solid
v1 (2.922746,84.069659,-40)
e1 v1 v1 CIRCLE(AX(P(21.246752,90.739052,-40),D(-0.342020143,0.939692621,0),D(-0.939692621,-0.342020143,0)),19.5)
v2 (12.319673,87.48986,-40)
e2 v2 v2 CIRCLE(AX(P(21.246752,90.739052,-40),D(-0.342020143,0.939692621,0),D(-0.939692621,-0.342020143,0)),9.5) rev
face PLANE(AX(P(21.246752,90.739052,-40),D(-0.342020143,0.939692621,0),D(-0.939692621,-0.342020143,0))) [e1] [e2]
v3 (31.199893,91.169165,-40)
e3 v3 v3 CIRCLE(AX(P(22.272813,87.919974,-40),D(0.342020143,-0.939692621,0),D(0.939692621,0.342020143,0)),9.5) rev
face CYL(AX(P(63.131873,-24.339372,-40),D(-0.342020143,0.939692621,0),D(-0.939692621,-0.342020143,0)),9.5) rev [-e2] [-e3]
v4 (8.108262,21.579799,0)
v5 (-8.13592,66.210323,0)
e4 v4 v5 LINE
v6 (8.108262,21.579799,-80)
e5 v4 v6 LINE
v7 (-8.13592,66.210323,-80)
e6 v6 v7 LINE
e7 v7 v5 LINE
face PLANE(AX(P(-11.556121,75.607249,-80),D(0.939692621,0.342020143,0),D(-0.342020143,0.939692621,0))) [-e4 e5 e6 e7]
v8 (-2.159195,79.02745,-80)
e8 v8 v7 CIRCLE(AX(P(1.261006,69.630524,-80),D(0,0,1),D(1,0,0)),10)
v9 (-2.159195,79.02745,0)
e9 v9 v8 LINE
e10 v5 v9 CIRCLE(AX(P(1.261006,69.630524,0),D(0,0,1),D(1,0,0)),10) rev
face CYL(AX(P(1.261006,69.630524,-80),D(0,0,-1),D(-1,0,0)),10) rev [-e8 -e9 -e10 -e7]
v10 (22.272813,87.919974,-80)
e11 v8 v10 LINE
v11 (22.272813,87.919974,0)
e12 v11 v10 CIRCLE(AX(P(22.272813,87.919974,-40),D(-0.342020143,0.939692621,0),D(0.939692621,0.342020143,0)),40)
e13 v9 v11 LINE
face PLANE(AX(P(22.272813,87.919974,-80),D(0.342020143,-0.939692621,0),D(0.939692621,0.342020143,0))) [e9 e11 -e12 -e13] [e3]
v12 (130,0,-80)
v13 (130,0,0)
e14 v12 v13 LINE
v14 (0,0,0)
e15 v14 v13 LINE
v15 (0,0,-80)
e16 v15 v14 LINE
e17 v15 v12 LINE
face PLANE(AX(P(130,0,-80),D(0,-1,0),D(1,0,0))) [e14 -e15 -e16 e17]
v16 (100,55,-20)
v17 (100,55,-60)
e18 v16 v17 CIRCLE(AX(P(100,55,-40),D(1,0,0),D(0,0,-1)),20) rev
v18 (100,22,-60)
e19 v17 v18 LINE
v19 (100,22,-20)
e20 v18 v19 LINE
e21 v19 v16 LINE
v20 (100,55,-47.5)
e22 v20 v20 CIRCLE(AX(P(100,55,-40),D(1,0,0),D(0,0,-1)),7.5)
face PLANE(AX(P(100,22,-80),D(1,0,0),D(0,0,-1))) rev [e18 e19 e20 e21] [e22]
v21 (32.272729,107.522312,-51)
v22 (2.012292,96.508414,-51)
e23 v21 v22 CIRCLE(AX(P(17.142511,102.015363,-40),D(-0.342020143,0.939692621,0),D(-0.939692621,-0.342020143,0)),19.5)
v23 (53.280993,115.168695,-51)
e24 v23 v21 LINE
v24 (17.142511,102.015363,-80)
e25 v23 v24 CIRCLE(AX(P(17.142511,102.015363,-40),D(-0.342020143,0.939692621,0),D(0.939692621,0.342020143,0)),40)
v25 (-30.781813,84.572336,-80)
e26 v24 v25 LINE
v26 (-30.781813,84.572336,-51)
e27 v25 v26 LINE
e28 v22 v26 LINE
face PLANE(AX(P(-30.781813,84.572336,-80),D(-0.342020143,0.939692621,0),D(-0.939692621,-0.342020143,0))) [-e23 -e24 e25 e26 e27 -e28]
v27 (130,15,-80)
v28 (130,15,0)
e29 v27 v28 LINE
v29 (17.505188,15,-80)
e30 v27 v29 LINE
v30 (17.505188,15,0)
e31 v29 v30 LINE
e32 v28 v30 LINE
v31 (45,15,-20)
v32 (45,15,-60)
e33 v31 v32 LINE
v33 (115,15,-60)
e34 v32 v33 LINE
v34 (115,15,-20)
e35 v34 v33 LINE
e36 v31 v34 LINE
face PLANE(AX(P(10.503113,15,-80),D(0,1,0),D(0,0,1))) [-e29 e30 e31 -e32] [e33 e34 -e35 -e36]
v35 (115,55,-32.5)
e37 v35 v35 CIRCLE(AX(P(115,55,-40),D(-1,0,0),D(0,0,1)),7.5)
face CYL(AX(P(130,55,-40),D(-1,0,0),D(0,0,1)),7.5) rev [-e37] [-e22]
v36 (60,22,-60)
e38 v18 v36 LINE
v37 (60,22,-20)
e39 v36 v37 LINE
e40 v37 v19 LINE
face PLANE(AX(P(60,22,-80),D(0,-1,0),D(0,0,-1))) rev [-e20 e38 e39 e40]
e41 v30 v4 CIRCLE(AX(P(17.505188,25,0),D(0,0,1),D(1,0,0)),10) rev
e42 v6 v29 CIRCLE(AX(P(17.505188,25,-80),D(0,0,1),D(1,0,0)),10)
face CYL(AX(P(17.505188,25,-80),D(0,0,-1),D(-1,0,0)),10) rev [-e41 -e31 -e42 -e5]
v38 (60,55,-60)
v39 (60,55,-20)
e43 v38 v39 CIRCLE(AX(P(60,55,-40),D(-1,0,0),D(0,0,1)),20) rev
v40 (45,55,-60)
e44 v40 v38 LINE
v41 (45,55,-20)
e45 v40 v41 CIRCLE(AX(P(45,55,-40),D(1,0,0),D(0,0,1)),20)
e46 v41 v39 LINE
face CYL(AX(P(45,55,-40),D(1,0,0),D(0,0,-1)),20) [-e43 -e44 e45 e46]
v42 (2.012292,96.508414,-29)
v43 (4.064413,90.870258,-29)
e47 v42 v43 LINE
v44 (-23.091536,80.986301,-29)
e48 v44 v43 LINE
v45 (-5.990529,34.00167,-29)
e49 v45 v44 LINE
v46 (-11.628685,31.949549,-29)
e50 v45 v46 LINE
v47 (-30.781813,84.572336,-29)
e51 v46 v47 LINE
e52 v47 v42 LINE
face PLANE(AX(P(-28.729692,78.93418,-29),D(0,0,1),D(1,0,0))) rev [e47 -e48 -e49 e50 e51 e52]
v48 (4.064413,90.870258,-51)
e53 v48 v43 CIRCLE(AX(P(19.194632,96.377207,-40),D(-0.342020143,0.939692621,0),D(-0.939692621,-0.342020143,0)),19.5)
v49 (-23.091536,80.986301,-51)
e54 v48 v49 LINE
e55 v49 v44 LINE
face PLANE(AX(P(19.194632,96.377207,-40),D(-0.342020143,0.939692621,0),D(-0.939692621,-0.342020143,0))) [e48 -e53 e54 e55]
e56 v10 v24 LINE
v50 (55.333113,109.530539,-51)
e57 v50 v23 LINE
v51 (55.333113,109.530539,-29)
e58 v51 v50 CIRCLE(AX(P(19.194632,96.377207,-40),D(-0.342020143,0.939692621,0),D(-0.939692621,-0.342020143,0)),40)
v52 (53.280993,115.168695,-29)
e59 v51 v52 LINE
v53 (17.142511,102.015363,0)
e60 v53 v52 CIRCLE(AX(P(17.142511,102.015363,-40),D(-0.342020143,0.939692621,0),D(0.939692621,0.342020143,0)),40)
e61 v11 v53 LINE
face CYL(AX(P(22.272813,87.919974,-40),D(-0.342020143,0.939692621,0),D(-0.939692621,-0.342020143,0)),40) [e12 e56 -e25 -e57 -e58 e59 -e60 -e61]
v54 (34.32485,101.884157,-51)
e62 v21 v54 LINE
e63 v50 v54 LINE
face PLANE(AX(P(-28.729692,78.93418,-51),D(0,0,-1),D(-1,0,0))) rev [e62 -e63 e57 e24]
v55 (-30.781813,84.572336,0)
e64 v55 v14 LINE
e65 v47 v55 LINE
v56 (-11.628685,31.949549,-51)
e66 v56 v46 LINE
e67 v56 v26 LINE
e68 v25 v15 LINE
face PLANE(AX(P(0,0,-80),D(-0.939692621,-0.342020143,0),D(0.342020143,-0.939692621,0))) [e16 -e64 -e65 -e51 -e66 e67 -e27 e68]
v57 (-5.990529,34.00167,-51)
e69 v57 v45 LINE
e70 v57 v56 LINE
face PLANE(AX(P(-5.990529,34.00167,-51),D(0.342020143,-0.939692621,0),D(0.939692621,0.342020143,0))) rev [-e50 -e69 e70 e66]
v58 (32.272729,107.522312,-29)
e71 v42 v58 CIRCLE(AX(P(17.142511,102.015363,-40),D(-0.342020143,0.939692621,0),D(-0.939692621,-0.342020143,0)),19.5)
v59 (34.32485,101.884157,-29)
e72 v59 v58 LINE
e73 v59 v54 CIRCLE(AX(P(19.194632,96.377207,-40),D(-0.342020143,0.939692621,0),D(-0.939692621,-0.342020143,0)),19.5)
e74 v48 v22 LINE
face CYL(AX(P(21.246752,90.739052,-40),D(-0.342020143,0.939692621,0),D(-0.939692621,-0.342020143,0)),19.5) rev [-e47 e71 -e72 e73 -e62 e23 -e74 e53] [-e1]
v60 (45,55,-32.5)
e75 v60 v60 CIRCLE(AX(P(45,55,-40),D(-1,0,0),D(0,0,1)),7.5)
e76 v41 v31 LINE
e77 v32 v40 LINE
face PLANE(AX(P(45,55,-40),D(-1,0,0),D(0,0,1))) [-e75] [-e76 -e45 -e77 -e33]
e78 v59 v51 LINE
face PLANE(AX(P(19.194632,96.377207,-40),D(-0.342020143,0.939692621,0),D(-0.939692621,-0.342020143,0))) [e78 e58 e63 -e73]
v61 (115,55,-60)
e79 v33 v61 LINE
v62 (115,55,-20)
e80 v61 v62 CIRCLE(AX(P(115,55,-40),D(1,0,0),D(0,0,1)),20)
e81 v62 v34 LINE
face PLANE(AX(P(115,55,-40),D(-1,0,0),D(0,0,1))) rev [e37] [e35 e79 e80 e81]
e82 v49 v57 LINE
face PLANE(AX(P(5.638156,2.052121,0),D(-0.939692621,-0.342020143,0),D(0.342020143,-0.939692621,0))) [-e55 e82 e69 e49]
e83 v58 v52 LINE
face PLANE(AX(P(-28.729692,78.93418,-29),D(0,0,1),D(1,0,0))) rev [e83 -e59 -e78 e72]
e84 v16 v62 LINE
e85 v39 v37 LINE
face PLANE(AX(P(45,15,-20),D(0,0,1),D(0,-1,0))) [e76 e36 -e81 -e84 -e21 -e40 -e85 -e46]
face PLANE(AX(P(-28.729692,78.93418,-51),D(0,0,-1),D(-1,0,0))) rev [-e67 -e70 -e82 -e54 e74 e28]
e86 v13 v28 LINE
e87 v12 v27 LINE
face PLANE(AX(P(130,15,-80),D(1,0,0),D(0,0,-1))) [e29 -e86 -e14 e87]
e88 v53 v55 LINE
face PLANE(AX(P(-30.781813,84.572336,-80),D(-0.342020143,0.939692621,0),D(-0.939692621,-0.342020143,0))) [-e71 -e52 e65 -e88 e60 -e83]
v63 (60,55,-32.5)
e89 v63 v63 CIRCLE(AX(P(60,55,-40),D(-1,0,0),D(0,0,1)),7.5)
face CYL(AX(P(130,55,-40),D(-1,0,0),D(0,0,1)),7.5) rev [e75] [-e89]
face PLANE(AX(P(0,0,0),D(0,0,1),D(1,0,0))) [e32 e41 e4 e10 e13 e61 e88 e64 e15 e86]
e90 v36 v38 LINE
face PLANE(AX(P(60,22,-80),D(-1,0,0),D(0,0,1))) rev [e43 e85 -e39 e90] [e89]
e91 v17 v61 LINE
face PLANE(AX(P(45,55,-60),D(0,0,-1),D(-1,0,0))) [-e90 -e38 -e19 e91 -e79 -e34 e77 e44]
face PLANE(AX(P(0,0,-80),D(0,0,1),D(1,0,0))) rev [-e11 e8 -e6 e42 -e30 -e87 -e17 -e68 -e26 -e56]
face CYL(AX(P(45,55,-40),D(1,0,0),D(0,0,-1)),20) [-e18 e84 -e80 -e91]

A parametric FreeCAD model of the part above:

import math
import FreeCAD as App
import Part
import Sketcher

V = App.Vector
Q = App.Units.Quantity


def edges_at(feature, points):
    """Names of the edges that pass closest to the given points."""
    edges = feature.Shape.Edges
    near = lambda p: min(range(len(edges)), key=lambda i: edges[i].distToShape(Part.Vertex(*p))[0])
    return sorted({f"Edge{near(p) + 1}" for p in points})

doc = App.newDocument("Part")
body = doc.addObject("PartDesign::Body", "Body")

sketch1 = body.newObject("Sketcher::SketchObject", "Sketch")
sketch1.AttachmentSupport = (doc.getObject("XY_Plane"), [""])
sketch1.MapMode = "FlatFace"
sketch1.addGeometry([
    Part.LineSegment(V(-31, 85, 0), V(0, 0, 0)),
    Part.LineSegment(V(0, 0, 0), V(130, 0, 0)),
    Part.LineSegment(V(130, 0, 0), V(130, 15, 0)),
    Part.LineSegment(V(130, 15, 0), V(11, 15, 0)),
    Part.LineSegment(V(11, 15, 0), V(-12, 76, 0)),
    Part.LineSegment(V(-12, 76, 0), V(22, 88, 0)),
    Part.LineSegment(V(22, 88, 0), V(17, 102, 0)),
    Part.LineSegment(V(17, 102, 0), V(-31, 85, 0)),
], False)
sketch1.addConstraint([
    Sketcher.Constraint("Coincident", 0, 2, 1, 1),
    Sketcher.Constraint("Coincident", 1, 2, 2, 1),
    Sketcher.Constraint("Coincident", 2, 2, 3, 1),
    Sketcher.Constraint("Coincident", 3, 2, 4, 1),
    Sketcher.Constraint("Coincident", 4, 2, 5, 1),
    Sketcher.Constraint("Coincident", 5, 2, 6, 1),
    Sketcher.Constraint("Coincident", 6, 2, 7, 1),
    Sketcher.Constraint("Coincident", 7, 2, 0, 1),
    Sketcher.Constraint("Horizontal", 1),
    Sketcher.Constraint("Vertical", 2),
    Sketcher.Constraint("Horizontal", 3),
    Sketcher.Constraint("Coincident", 0, 2, -1, 1),
    Sketcher.Constraint("Parallel", 0, 4),
    Sketcher.Constraint("Perpendicular", 4, 5),
    Sketcher.Constraint("Perpendicular", 5, 6),
    Sketcher.Constraint("Perpendicular", 6, 7),
    Sketcher.Constraint("DistanceX", 1, 1, 1, 2, Q("130 mm")),
    Sketcher.Constraint("DistanceY", 2, 1, 2, 2, Q("15 mm")),
    Sketcher.Constraint("Angle", 0, Q("-70 deg")),
    Sketcher.Constraint("Distance", 0, Q("90 mm")),
    Sketcher.Constraint("Distance", 5, Q("36 mm")),
    Sketcher.Constraint("Distance", 6, Q("15 mm")),
    Sketcher.Constraint("Distance", 7, Q("51 mm")),
])
pad1 = body.newObject("PartDesign::Pad", "Pad")
pad1.Profile = sketch1
pad1.Length = 80
pad1.Reversed = True

sketch2 = body.newObject("Sketcher::SketchObject", "Sketch001")
sketch2.Placement = App.Placement(V(-30.781813, 84.572336, 0), App.Rotation(V(0.939692621, 0.342020143, 0), V(0, 0, -1), V(-0.342020143, 0.939692621, 0), "ZXY"))
sketch2.addGeometry([
    Part.LineSegment(V(51, 80, 0), V(51, 0, 0)),
    Part.ArcOfCircle(Part.Circle(V(51, 40, 0), V(0, 0, 1), 40), math.radians(-90), math.radians(90)),
], False)
sketch2.addConstraint([
    Sketcher.Constraint("Coincident", 0, 1, 1, 2),
    Sketcher.Constraint("Coincident", 1, 1, 0, 2),
    Sketcher.Constraint("Vertical", 0),
    Sketcher.Constraint("PointOnObject", 1, 1, -1),
    Sketcher.Constraint("Vertical", 1, 3, 0, 1),
    Sketcher.Constraint("Radius", 1, Q("40 mm")),
    Sketcher.Constraint("DistanceX", -1, 1, 1, 3, Q("51 mm")),
])
pad2 = body.newObject("PartDesign::Pad", "Pad001")
pad2.Profile = sketch2
pad2.Length = 15
pad2.Reversed = True

sketch3 = body.newObject("Sketcher::SketchObject", "Sketch002")
sketch3.Placement = App.Placement(V(-30.781813, 84.572336, 0), App.Rotation(V(0.939692621, 0.342020143, 0), V(0, 0, -1), V(-0.342020143, 0.939692621, 0), "ZXY"))
sketch3.addGeometry(Part.Circle(V(51, 40, 0), V(0, 0, 1), 10), False)
sketch3.addConstraint([
    Sketcher.Constraint("Diameter", 0, Q("19 mm")),
    Sketcher.Constraint("DistanceX", -1, 1, 0, 3, Q("51 mm")),
    Sketcher.Constraint("DistanceY", -1, 1, 0, 3, Q("40 mm")),
])
pocket1 = body.newObject("PartDesign::Pocket", "Pocket")
pocket1.Profile = sketch3
pocket1.Type = "UpToFirst"

sketch4 = body.newObject("Sketcher::SketchObject", "Sketch003")
sketch4.Placement = App.Placement(V(-30.781813, 84.572336, 0), App.Rotation(V(0.939692621, 0.342020143, 0), V(0, 0, -1), V(-0.342020143, 0.939692621, 0), "ZXY"))
sketch4.addGeometry([
    Part.LineSegment(V(89, 51, 0), V(0, 51, 0)),
    Part.LineSegment(V(0, 51, 0), V(0, 29, 0)),
    Part.LineSegment(V(0, 29, 0), V(89, 29, 0)),
    Part.ArcOfCircle(Part.Circle(V(51, 40, 0), V(0, 0, 1), 40), math.radians(-16), math.radians(16)),
], False)
sketch4.addConstraint([
    Sketcher.Constraint("Coincident", 0, 2, 1, 1),
    Sketcher.Constraint("Coincident", 1, 2, 2, 1),
    Sketcher.Constraint("Coincident", 2, 2, 3, 1),
    Sketcher.Constraint("Coincident", 3, 2, 0, 1),
    Sketcher.Constraint("Horizontal", 0),
    Sketcher.Constraint("Vertical", 1),
    Sketcher.Constraint("Horizontal", 2),
    Sketcher.Constraint("PointOnObject", 0, 2, -2),
    Sketcher.Constraint("Vertical", 2, 2, 3, 2),
    Sketcher.Constraint("Radius", 3, Q("40 mm")),
    Sketcher.Constraint("DistanceY", 1, 2, 1, 1, Q("22 mm")),
    Sketcher.Constraint("DistanceX", -1, 1, 3, 3, Q("51 mm")),
    Sketcher.Constraint("DistanceY", -1, 1, 3, 3, Q("40 mm")),
])
pocket2 = body.newObject("PartDesign::Pocket", "Pocket001")
pocket2.Profile = sketch4
pocket2.Length = 6

sketch5 = body.newObject("Sketcher::SketchObject", "Sketch004")
sketch5.Placement = App.Placement(V(-30.781813, 84.572336, 0), App.Rotation(V(0.939692621, 0.342020143, 0), V(0, 0, -1), V(-0.342020143, 0.939692621, 0), "ZXY"))
sketch5.addGeometry(Part.Circle(V(51, 40, 0), V(0, 0, 1), 20), False)
sketch5.addConstraint([
    Sketcher.Constraint("Diameter", 0, Q("39 mm")),
    Sketcher.Constraint("DistanceX", -1, 1, 0, 3, Q("51 mm")),
    Sketcher.Constraint("DistanceY", -1, 1, 0, 3, Q("40 mm")),
])
pocket3 = body.newObject("PartDesign::Pocket", "Pocket002")
pocket3.Profile = sketch5
pocket3.Length = 12

sketch6 = body.newObject("Sketcher::SketchObject", "Sketch005")
sketch6.Placement = App.Placement(V(0, 0, 0), App.Rotation(V(0, 0, 1), V(-0.342020143, 0.939692621, 0), V(-0.939692621, -0.342020143, 0), "ZXY"))
sketch6.addGeometry([
    Part.LineSegment(V(-51, 90, 0), V(-51, 34, 0)),
    Part.LineSegment(V(-51, 34, 0), V(-29, 34, 0)),
    Part.LineSegment(V(-29, 34, 0), V(-29, 90, 0)),
    Part.LineSegment(V(-29, 90, 0), V(-51, 90, 0)),
], False)
sketch6.addConstraint([
    Sketcher.Constraint("Coincident", 0, 2, 1, 1),
    Sketcher.Constraint("Coincident", 1, 2, 2, 1),
    Sketcher.Constraint("Coincident", 2, 2, 3, 1),
    Sketcher.Constraint("Coincident", 3, 2, 0, 1),
    Sketcher.Constraint("Vertical", 0),
    Sketcher.Constraint("Horizontal", 1),
    Sketcher.Constraint("Vertical", 2),
    Sketcher.Constraint("Horizontal", 3),
    Sketcher.Constraint("DistanceX", 1, 1, 1, 2, Q("22 mm")),
    Sketcher.Constraint("DistanceY", 0, 2, 0, 1, Q("56 mm")),
    Sketcher.Constraint("DistanceX", 0, 2, -1, 1, Q("51 mm")),
    Sketcher.Constraint("DistanceY", -1, 1, 0, 2, Q("34 mm")),
])
pocket4 = body.newObject("PartDesign::Pocket", "Pocket003")
pocket4.Profile = sketch6
pocket4.Length = 6

sketch7 = body.newObject("Sketcher::SketchObject", "Sketch006")
sketch7.AttachmentSupport = (doc.getObject("YZ_Plane"), [""])
sketch7.MapMode = "FlatFace"
sketch7.AttachmentOffset = App.Placement(V(0, 0, 115), App.Rotation())
sketch7.addGeometry([
    Part.LineSegment(V(55, -20, 0), V(15, -20, 0)),
    Part.LineSegment(V(15, -20, 0), V(15, -60, 0)),
    Part.LineSegment(V(15, -60, 0), V(55, -60, 0)),
    Part.ArcOfCircle(Part.Circle(V(55, -40, 0), V(0, 0, 1), 20), math.radians(-90), math.radians(90)),
], False)
sketch7.addConstraint([
    Sketcher.Constraint("Coincident", 0, 2, 1, 1),
    Sketcher.Constraint("Coincident", 1, 2, 2, 1),
    Sketcher.Constraint("Tangent", 2, 2, 3, 1),
    Sketcher.Constraint("Tangent", 3, 2, 0, 1),
    Sketcher.Constraint("Horizontal", 0),
    Sketcher.Constraint("Vertical", 1),
    Sketcher.Constraint("Horizontal", 2),
    Sketcher.Constraint("Equal", 2, 1),
    Sketcher.Constraint("Radius", 3, Q("20 mm")),
    Sketcher.Constraint("DistanceX", -1, 1, 3, 3, Q("55 mm")),
    Sketcher.Constraint("DistanceY", 3, 3, -1, 1, Q("40 mm")),
])
pad3 = body.newObject("PartDesign::Pad", "Pad002")
pad3.Profile = sketch7
pad3.Length = 70
pad3.Reversed = True

sketch8 = body.newObject("Sketcher::SketchObject", "Sketch007")
sketch8.AttachmentSupport = (doc.getObject("XY_Plane"), [""])
sketch8.MapMode = "FlatFace"
sketch8.AttachmentOffset = App.Placement(V(0, 0, -20), App.Rotation())
sketch8.addGeometry([
    Part.LineSegment(V(60, 75, 0), V(60, 22, 0)),
    Part.LineSegment(V(60, 22, 0), V(100, 22, 0)),
    Part.LineSegment(V(100, 22, 0), V(100, 75, 0)),
    Part.LineSegment(V(100, 75, 0), V(60, 75, 0)),
], False)
sketch8.addConstraint([
    Sketcher.Constraint("Coincident", 0, 2, 1, 1),
    Sketcher.Constraint("Coincident", 1, 2, 2, 1),
    Sketcher.Constraint("Coincident", 2, 2, 3, 1),
    Sketcher.Constraint("Coincident", 3, 2, 0, 1),
    Sketcher.Constraint("Vertical", 0),
    Sketcher.Constraint("Horizontal", 1),
    Sketcher.Constraint("Vertical", 2),
    Sketcher.Constraint("Horizontal", 3),
    Sketcher.Constraint("DistanceX", 1, 1, 1, 2, Q("40 mm")),
    Sketcher.Constraint("DistanceY", 0, 2, 0, 1, Q("53 mm")),
    Sketcher.Constraint("DistanceX", -1, 1, 0, 2, Q("60 mm")),
    Sketcher.Constraint("DistanceY", -1, 1, 0, 2, Q("22 mm")),
])
pocket5 = body.newObject("PartDesign::Pocket", "Pocket004")
pocket5.Profile = sketch8
pocket5.Type = "ThroughAll"

sketch9 = body.newObject("Sketcher::SketchObject", "Sketch008")
sketch9.AttachmentSupport = (doc.getObject("YZ_Plane"), [""])
sketch9.MapMode = "FlatFace"
sketch9.AttachmentOffset = App.Placement(V(0, 0, 45), App.Rotation())
sketch9.addGeometry(Part.Circle(V(55, -40, 0), V(0, 0, 1), 8), False)
sketch9.addConstraint([
    Sketcher.Constraint("Diameter", 0, Q("15 mm")),
    Sketcher.Constraint("DistanceX", -1, 1, 0, 3, Q("55 mm")),
    Sketcher.Constraint("DistanceY", 0, 3, -1, 1, Q("40 mm")),
])
pocket6 = body.newObject("PartDesign::Pocket", "Pocket005")
pocket6.Profile = sketch9
pocket6.Type = "ThroughAll"
pocket6.Reversed = True
doc.recompute()

fillet = body.newObject("PartDesign::Fillet", "Fillet")
fillet.Base = (pocket6, edges_at(pocket6, [(-11.556, 75.607, -40), (10.503, 15, -40)]))
fillet.Radius = 10

doc.recompute()
